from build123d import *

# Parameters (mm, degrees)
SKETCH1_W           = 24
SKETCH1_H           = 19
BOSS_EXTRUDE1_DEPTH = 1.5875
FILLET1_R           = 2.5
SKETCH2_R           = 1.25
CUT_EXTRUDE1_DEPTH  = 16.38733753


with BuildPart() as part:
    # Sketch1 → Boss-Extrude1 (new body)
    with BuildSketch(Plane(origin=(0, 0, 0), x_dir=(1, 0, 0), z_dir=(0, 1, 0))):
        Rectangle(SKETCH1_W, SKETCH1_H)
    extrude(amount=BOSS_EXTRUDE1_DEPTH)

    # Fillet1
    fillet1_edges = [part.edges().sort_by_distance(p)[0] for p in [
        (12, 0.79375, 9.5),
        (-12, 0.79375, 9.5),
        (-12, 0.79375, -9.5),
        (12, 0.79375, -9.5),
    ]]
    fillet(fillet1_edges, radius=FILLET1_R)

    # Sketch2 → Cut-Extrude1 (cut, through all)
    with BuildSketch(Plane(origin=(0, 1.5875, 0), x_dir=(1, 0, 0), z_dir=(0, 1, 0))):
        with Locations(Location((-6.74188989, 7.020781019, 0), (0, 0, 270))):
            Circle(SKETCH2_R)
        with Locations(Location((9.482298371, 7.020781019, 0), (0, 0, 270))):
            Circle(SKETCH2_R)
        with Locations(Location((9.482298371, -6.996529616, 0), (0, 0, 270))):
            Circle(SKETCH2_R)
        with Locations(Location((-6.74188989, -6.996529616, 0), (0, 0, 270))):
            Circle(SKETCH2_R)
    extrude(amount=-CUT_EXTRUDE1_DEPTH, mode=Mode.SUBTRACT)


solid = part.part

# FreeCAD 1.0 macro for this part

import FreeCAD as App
import Part
import Sketcher

V = App.Vector
Q = App.Units.Quantity


def edges_at(feature, points):
    """Names of the edges that pass closest to the given points."""
    edges = feature.Shape.Edges
    near = lambda p: min(range(len(edges)), key=lambda i: edges[i].distToShape(Part.Vertex(*p))[0])
    return sorted({f"Edge{near(p) + 1}" for p in points})

doc = App.newDocument("Part")
body = doc.addObject("PartDesign::Body", "Body")

# Sketch on XZ plane
sketch1 = body.newObject("Sketcher::SketchObject", "Sketch")
sketch1.AttachmentSupport = (doc.getObject("XZ_Plane"), [""])
sketch1.MapMode = "FlatFace"
sketch1.addGeometry(Part.LineSegment(V(-12, -10, 0), V(-12, 10, 0)), False)
sketch1.addGeometry(Part.LineSegment(V(-12, 10, 0), V(12, 10, 0)), False)
sketch1.addGeometry(Part.LineSegment(V(12, 10, 0), V(12, -10, 0)), False)
sketch1.addGeometry(Part.LineSegment(V(12, -10, 0), V(-12, -10, 0)), False)
sketch1.addConstraint(Sketcher.Constraint("Coincident", 0, 2, 1, 1))
sketch1.addConstraint(Sketcher.Constraint("Coincident", 1, 2, 2, 1))
sketch1.addConstraint(Sketcher.Constraint("Coincident", 2, 2, 3, 1))
sketch1.addConstraint(Sketcher.Constraint("Coincident", 3, 2, 0, 1))
sketch1.addConstraint(Sketcher.Constraint("Vertical", 0))
sketch1.addConstraint(Sketcher.Constraint("Horizontal", 1))
sketch1.addConstraint(Sketcher.Constraint("Vertical", 2))
sketch1.addConstraint(Sketcher.Constraint("Horizontal", 3))
sketch1.addConstraint(Sketcher.Constraint("Symmetric", 0, 2, 2, 2, -1, 1))
sketch1.addConstraint(Sketcher.Constraint("DistanceX", 1, 1, 1, 2, Q("24 mm")))
sketch1.addConstraint(Sketcher.Constraint("DistanceY", 0, 1, 0, 2, Q("19 mm")))
pad1 = body.newObject("PartDesign::Pad", "Pad")
pad1.Profile = sketch1
pad1.Length = 1.5875
pad1.Reversed = True
doc.recompute()

fillet = body.newObject("PartDesign::Fillet", "Fillet")
fillet.Base = (pad1, edges_at(pad1, [
    (12, 0.794, 9.5),
    (-12, 0.794, 9.5),
    (-12, 0.794, -9.5),
    (12, 0.794, -9.5),
]))
fillet.Radius = 2.5

# Sketch on XZ plane
sketch2 = body.newObject("Sketcher::SketchObject", "Sketch001")
sketch2.AttachmentSupport = (doc.getObject("XZ_Plane"), [""])
sketch2.MapMode = "FlatFace"
sketch2.AttachmentOffset = App.Placement(V(0, 0, -1.5875), App.Rotation())
sketch2.addGeometry(Part.Circle(V(-6.7, -7, 0), V(0, 0, 1), 1.2), False)
sketch2.addGeometry(Part.Circle(V(9.5, -7, 0), V(0, 0, 1), 1.2), False)
sketch2.addGeometry(Part.Circle(V(9.5, 7, 0), V(0, 0, 1), 1.2), False)
sketch2.addGeometry(Part.Circle(V(-6.7, 7, 0), V(0, 0, 1), 1.2), False)
sketch2.addConstraint(Sketcher.Constraint("Equal", 0, 1))
sketch2.addConstraint(Sketcher.Constraint("Equal", 1, 2))
sketch2.addConstraint(Sketcher.Constraint("Equal", 2, 3))
sketch2.addConstraint(Sketcher.Constraint("Horizontal", 0, 3, 1, 3))
sketch2.addConstraint(Sketcher.Constraint("Horizontal", 2, 3, 3, 3))
sketch2.addConstraint(Sketcher.Constraint("Vertical", 1, 3, 2, 3))
sketch2.addConstraint(Sketcher.Constraint("Vertical", 0, 3, 3, 3))
sketch2.addConstraint(Sketcher.Constraint("Diameter", 0, Q("2.5 mm")))
sketch2.addConstraint(Sketcher.Constraint("DistanceX", -1, 1, 1, 3, Q("9.482298 mm")))
sketch2.addConstraint(Sketcher.Constraint("DistanceX", 0, 3, -1, 1, Q("6.74189 mm")))
sketch2.addConstraint(Sketcher.Constraint("DistanceY", 0, 3, -1, 1, Q("7.020781 mm")))
sketch2.addConstraint(Sketcher.Constraint("DistanceY", -1, 1, 2, 3, Q("6.99653 mm")))
pocket1 = body.newObject("PartDesign::Pocket", "Pocket")
pocket1.Profile = sketch2
pocket1.Type = "ThroughAll"
pocket1.Reversed = True

doc.recompute()
